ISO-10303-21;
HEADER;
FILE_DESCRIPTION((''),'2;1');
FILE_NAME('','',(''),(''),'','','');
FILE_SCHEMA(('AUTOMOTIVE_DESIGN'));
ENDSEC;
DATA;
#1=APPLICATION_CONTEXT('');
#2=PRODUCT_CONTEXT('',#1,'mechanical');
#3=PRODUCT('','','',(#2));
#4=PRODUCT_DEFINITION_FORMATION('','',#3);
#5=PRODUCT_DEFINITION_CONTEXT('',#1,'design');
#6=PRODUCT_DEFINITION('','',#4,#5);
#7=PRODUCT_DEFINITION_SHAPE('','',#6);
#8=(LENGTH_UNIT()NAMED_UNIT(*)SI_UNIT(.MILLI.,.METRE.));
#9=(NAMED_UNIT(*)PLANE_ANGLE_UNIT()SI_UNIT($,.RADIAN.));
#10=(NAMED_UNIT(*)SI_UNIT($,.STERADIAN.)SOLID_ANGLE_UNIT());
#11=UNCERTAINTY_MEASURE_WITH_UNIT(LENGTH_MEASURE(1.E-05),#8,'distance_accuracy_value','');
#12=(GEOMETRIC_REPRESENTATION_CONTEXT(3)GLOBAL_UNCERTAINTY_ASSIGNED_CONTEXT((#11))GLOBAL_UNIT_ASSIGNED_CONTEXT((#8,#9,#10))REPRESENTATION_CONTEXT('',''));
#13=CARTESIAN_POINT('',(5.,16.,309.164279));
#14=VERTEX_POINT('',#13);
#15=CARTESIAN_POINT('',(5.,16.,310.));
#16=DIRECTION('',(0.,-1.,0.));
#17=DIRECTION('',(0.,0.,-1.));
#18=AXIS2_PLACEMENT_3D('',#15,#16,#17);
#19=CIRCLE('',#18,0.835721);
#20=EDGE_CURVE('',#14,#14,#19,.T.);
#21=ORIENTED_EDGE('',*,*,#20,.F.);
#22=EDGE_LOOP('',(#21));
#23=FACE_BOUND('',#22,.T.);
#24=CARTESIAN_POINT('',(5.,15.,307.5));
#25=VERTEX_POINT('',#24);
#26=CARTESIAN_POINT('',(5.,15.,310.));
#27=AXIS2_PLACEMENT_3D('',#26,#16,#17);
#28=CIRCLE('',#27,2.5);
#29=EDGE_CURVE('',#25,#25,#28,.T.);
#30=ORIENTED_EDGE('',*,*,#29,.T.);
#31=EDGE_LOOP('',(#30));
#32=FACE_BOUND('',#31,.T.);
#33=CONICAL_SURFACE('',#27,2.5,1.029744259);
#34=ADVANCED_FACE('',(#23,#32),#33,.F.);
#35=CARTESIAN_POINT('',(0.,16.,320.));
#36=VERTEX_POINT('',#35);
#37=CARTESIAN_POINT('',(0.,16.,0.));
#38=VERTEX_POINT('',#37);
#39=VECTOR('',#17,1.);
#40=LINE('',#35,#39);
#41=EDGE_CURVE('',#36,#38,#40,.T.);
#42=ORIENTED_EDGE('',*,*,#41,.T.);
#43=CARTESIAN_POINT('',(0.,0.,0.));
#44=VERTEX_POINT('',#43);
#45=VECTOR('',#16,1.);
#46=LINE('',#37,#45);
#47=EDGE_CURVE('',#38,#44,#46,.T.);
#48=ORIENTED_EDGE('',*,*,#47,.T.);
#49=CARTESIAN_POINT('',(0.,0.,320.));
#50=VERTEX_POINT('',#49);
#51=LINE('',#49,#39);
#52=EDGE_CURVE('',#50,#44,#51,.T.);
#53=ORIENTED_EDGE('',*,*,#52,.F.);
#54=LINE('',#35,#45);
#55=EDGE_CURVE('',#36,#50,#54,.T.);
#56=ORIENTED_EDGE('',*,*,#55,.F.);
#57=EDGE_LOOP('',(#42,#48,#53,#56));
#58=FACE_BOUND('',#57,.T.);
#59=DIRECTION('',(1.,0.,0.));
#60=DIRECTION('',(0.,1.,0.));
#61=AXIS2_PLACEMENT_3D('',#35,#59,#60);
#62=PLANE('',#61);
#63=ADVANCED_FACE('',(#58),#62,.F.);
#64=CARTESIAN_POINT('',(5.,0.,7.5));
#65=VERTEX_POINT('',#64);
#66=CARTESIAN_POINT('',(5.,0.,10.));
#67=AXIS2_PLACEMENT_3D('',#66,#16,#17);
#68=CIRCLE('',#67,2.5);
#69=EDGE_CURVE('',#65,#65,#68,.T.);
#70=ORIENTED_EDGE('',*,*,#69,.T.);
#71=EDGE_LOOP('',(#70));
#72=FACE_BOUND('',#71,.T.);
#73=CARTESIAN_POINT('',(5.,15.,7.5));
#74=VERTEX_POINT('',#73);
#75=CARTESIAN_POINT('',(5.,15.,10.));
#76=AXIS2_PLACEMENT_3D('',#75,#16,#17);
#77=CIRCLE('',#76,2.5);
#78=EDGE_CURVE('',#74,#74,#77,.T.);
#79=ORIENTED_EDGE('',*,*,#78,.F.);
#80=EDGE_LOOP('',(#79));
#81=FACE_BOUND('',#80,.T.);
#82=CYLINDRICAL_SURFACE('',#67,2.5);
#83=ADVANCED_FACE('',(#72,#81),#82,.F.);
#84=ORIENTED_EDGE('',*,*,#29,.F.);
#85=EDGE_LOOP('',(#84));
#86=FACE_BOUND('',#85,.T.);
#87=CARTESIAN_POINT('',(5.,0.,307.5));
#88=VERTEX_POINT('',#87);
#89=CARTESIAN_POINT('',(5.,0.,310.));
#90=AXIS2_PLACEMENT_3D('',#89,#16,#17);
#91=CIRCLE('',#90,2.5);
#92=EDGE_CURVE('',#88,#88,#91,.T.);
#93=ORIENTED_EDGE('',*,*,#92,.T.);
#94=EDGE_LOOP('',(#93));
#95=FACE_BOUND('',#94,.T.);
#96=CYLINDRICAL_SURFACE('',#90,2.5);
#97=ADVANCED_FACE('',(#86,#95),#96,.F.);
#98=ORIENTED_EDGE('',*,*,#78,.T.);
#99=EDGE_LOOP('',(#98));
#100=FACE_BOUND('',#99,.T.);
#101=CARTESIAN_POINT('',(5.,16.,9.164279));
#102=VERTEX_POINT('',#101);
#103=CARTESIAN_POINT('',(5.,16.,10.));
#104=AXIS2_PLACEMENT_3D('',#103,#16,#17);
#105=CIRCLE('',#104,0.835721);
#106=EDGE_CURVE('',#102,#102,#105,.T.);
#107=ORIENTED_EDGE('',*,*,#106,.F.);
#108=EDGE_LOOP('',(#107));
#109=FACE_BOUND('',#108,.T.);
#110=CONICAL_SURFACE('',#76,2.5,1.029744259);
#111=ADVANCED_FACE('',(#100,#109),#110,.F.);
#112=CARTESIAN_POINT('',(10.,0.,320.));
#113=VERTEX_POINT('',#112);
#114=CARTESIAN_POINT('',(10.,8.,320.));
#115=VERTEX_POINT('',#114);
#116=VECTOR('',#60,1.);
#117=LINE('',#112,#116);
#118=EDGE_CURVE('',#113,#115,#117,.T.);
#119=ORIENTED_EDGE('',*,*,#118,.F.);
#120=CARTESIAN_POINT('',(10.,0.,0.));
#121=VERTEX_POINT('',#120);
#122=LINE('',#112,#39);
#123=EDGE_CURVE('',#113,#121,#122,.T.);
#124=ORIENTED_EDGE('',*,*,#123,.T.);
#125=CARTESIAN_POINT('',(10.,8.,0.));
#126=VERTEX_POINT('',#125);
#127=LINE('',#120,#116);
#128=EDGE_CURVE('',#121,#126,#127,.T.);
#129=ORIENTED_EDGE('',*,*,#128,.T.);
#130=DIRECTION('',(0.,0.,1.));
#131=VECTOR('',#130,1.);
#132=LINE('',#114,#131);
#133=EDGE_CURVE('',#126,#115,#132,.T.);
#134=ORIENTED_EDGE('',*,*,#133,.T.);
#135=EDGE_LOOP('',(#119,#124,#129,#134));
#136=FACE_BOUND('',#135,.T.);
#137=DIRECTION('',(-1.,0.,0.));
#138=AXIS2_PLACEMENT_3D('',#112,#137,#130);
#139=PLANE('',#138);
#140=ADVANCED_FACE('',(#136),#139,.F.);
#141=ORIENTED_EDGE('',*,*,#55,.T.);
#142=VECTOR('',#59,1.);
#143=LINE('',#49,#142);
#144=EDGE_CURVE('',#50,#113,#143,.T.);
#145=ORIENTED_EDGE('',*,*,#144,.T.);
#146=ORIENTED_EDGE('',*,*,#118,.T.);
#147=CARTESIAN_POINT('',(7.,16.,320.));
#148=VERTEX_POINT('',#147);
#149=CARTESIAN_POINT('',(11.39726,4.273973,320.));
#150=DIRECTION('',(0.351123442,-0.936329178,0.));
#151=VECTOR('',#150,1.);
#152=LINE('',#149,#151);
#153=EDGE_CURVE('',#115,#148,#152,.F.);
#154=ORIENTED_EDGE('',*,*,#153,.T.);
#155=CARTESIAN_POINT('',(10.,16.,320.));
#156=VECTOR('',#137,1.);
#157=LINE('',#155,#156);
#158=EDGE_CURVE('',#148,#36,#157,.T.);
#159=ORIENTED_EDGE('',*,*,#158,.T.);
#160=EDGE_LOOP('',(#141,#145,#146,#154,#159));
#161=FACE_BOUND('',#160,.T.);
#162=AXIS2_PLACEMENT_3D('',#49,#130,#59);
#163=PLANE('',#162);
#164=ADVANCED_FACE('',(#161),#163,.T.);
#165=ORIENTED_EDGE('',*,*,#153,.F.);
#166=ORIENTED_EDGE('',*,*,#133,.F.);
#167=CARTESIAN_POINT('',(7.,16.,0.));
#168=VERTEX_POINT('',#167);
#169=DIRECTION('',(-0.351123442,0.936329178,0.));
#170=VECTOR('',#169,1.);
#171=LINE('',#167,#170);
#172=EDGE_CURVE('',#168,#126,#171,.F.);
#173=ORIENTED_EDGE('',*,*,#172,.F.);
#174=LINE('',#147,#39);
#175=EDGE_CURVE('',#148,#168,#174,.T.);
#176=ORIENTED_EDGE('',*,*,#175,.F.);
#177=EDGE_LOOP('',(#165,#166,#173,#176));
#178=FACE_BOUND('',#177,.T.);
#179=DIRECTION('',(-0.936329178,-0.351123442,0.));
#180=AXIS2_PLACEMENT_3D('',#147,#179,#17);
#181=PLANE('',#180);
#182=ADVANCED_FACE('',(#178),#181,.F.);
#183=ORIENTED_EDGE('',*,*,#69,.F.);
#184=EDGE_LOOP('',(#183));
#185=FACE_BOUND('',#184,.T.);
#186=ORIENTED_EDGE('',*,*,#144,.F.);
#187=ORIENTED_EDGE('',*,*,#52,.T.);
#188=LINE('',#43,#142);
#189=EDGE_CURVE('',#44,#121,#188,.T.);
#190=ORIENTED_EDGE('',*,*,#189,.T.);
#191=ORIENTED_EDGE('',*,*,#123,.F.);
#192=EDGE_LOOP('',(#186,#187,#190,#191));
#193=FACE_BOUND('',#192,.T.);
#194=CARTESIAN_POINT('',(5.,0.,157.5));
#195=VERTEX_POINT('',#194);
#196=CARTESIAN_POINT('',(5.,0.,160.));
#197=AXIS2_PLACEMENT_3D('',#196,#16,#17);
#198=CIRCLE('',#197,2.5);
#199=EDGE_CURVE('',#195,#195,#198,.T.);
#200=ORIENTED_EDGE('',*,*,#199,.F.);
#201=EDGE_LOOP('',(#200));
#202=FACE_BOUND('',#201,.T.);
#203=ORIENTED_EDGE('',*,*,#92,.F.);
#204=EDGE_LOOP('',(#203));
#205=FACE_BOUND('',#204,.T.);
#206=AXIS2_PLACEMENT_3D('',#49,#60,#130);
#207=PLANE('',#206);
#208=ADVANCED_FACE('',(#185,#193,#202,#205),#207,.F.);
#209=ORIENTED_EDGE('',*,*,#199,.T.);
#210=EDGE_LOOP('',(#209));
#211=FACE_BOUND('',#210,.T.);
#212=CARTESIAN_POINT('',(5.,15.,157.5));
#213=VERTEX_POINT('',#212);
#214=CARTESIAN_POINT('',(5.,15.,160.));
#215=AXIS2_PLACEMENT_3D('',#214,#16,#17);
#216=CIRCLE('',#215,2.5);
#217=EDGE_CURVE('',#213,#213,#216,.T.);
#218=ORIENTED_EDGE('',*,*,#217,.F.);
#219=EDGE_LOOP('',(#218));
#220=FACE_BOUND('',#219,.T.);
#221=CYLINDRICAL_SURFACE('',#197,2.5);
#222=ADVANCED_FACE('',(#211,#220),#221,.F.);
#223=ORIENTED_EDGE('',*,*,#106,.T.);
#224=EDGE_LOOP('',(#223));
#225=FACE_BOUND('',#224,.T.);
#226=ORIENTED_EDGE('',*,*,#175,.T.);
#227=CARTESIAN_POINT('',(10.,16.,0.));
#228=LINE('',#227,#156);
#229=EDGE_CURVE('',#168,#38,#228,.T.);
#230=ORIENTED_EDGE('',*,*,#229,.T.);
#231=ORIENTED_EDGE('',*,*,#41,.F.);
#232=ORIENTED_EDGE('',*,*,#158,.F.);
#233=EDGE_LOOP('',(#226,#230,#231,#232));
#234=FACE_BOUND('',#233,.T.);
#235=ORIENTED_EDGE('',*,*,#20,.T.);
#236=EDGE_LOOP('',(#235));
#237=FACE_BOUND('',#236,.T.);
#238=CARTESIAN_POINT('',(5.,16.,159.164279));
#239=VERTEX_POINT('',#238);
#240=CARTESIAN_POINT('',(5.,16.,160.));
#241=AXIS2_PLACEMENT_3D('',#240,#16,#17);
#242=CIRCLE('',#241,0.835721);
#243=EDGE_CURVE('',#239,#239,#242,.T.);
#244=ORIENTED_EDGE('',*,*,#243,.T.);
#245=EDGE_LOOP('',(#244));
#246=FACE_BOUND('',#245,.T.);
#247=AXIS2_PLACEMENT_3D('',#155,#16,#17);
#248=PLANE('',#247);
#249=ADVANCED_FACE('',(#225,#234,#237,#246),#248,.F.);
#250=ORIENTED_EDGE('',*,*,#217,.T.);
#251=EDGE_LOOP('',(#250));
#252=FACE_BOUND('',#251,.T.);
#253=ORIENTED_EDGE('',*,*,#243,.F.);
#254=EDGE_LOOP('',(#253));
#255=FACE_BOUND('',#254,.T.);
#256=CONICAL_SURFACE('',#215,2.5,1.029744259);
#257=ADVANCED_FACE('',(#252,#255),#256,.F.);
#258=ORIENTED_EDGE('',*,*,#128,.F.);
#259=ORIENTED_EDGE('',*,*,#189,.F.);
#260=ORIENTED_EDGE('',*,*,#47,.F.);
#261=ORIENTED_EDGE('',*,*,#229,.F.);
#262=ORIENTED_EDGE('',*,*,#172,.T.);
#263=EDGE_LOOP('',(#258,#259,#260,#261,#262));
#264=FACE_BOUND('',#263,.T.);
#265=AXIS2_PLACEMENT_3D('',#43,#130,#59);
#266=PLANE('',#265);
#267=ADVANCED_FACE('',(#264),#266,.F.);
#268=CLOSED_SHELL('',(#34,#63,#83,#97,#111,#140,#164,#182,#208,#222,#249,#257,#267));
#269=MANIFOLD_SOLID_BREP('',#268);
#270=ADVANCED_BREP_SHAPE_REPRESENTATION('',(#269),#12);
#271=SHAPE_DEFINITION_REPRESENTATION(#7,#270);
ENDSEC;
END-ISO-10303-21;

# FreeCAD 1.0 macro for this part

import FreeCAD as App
import Part
import Sketcher
Q = App.Units.Quantity


def edges_at(feature, points):
    """Names of the edges that pass closest to the given points."""
    edges = feature.Shape.Edges
    near = lambda p: min(range(len(edges)), key=lambda i: edges[i].distToShape(Part.Vertex(*p))[0])
    return sorted({f"Edge{near(p) + 1}" for p in points})

doc = App.newDocument("Part")
params = doc.addObject("Spreadsheet::Sheet", "Params")
for row, (alias, value) in enumerate([
    ("sketch1_width", "10 mm"),
    ("sketch1_height", "16 mm"),
    ("pad1_length", "320 mm"),
    ("sketch2_diameter", "5 mm"),
    ("hole_diameter", "5 mm"),
    ("hole_depth", "15 mm"),
    ("chamfer_size", "8 mm"),
    ("chamfer_size2", "3 mm"),
], start=1):
    params.set(f"A{row}", alias)
    params.set(f"B{row}", "=" + value)
    params.setAlias(f"B{row}", alias)

body = doc.addObject("PartDesign::Body", "Body")

sketch1 = body.newObject("Sketcher::SketchObject", "Sketch")
sketch1.AttachmentSupport = (doc.getObject("XY_Plane"), [""])
sketch1.MapMode = "FlatFace"
sketch1.addGeometry([
    Part.LineSegment(App.Vector(0, 16, 0), App.Vector(0, 0, 0)),
    Part.LineSegment(App.Vector(0, 0, 0), App.Vector(10, 0, 0)),
    Part.LineSegment(App.Vector(10, 0, 0), App.Vector(10, 16, 0)),
    Part.LineSegment(App.Vector(10, 16, 0), App.Vector(0, 16, 0)),
], False)
sketch1.addConstraint([
    Sketcher.Constraint("Coincident", 0, 2, 1, 1),
    Sketcher.Constraint("Coincident", 1, 2, 2, 1),
    Sketcher.Constraint("Coincident", 2, 2, 3, 1),
    Sketcher.Constraint("Coincident", 3, 2, 0, 1),
    Sketcher.Constraint("Vertical", 0),
    Sketcher.Constraint("Horizontal", 1),
    Sketcher.Constraint("Vertical", 2),
    Sketcher.Constraint("Horizontal", 3),
    Sketcher.Constraint("Coincident", 0, 2, -1, 1),
    Sketcher.Constraint("DistanceX", 1, 1, 1, 2, Q("10 mm")),
    Sketcher.Constraint("DistanceY", 0, 2, 0, 1, Q("16 mm")),
])
sketch1.setExpression("Constraints[9]", "Params.sketch1_width")
sketch1.setExpression("Constraints[10]", "Params.sketch1_height")
pad1 = body.newObject("PartDesign::Pad", "Pad")
pad1.Profile = sketch1
pad1.setExpression("Length", "Params.pad1_length")

sketch2 = body.newObject("Sketcher::SketchObject", "Sketch001")
sketch2.AttachmentSupport = (doc.getObject("XZ_Plane"), [""])
sketch2.MapMode = "FlatFace"
sketch2.addGeometry([
    Part.Circle(App.Vector(5, 310, 0), App.Vector(0, 0, 1), 2.5),
    Part.Circle(App.Vector(5, 160, 0), App.Vector(0, 0, 1), 2.5),
    Part.Circle(App.Vector(5, 10, 0), App.Vector(0, 0, 1), 2.5),
], False)
sketch2.addConstraint([
    Sketcher.Constraint("Equal", 0, 1),
    Sketcher.Constraint("Equal", 1, 2),
    Sketcher.Constraint("Vertical", 0, 3, 1, 3),
    Sketcher.Constraint("Vertical", 1, 3, 2, 3),
    Sketcher.Constraint("Diameter", 0, Q("5 mm")),
    Sketcher.Constraint("DistanceX", -1, 1, 0, 3, Q("5 mm")),
    Sketcher.Constraint("DistanceY", -1, 1, 0, 3, Q("310 mm")),
    Sketcher.Constraint("DistanceY", -1, 1, 1, 3, Q("160 mm")),
    Sketcher.Constraint("DistanceY", -1, 1, 2, 3, Q("10 mm")),
])
sketch2.setExpression("Constraints[4]", "Params.sketch2_diameter")
doc.recompute()
hole = body.newObject("PartDesign::Hole", "Hole")
hole.Profile = sketch2
hole.ThreadType = "None"
hole.setExpression("Diameter", "Params.hole_diameter")
hole.DepthType = "Dimension"
hole.setExpression("Depth", "Params.hole_depth")
hole.DrillPoint = "Angled"
hole.DrillPointAngle = 118
doc.recompute()

chamfer = body.newObject("PartDesign::Chamfer", "Chamfer")
chamfer.Base = (hole, edges_at(hole, [(10, 16, 160)]))
chamfer.ChamferType = "Two distances"
chamfer.setExpression("Size", "Params.chamfer_size")
chamfer.setExpression("Size2", "Params.chamfer_size2")
chamfer.FlipDirection = True

doc.recompute()
